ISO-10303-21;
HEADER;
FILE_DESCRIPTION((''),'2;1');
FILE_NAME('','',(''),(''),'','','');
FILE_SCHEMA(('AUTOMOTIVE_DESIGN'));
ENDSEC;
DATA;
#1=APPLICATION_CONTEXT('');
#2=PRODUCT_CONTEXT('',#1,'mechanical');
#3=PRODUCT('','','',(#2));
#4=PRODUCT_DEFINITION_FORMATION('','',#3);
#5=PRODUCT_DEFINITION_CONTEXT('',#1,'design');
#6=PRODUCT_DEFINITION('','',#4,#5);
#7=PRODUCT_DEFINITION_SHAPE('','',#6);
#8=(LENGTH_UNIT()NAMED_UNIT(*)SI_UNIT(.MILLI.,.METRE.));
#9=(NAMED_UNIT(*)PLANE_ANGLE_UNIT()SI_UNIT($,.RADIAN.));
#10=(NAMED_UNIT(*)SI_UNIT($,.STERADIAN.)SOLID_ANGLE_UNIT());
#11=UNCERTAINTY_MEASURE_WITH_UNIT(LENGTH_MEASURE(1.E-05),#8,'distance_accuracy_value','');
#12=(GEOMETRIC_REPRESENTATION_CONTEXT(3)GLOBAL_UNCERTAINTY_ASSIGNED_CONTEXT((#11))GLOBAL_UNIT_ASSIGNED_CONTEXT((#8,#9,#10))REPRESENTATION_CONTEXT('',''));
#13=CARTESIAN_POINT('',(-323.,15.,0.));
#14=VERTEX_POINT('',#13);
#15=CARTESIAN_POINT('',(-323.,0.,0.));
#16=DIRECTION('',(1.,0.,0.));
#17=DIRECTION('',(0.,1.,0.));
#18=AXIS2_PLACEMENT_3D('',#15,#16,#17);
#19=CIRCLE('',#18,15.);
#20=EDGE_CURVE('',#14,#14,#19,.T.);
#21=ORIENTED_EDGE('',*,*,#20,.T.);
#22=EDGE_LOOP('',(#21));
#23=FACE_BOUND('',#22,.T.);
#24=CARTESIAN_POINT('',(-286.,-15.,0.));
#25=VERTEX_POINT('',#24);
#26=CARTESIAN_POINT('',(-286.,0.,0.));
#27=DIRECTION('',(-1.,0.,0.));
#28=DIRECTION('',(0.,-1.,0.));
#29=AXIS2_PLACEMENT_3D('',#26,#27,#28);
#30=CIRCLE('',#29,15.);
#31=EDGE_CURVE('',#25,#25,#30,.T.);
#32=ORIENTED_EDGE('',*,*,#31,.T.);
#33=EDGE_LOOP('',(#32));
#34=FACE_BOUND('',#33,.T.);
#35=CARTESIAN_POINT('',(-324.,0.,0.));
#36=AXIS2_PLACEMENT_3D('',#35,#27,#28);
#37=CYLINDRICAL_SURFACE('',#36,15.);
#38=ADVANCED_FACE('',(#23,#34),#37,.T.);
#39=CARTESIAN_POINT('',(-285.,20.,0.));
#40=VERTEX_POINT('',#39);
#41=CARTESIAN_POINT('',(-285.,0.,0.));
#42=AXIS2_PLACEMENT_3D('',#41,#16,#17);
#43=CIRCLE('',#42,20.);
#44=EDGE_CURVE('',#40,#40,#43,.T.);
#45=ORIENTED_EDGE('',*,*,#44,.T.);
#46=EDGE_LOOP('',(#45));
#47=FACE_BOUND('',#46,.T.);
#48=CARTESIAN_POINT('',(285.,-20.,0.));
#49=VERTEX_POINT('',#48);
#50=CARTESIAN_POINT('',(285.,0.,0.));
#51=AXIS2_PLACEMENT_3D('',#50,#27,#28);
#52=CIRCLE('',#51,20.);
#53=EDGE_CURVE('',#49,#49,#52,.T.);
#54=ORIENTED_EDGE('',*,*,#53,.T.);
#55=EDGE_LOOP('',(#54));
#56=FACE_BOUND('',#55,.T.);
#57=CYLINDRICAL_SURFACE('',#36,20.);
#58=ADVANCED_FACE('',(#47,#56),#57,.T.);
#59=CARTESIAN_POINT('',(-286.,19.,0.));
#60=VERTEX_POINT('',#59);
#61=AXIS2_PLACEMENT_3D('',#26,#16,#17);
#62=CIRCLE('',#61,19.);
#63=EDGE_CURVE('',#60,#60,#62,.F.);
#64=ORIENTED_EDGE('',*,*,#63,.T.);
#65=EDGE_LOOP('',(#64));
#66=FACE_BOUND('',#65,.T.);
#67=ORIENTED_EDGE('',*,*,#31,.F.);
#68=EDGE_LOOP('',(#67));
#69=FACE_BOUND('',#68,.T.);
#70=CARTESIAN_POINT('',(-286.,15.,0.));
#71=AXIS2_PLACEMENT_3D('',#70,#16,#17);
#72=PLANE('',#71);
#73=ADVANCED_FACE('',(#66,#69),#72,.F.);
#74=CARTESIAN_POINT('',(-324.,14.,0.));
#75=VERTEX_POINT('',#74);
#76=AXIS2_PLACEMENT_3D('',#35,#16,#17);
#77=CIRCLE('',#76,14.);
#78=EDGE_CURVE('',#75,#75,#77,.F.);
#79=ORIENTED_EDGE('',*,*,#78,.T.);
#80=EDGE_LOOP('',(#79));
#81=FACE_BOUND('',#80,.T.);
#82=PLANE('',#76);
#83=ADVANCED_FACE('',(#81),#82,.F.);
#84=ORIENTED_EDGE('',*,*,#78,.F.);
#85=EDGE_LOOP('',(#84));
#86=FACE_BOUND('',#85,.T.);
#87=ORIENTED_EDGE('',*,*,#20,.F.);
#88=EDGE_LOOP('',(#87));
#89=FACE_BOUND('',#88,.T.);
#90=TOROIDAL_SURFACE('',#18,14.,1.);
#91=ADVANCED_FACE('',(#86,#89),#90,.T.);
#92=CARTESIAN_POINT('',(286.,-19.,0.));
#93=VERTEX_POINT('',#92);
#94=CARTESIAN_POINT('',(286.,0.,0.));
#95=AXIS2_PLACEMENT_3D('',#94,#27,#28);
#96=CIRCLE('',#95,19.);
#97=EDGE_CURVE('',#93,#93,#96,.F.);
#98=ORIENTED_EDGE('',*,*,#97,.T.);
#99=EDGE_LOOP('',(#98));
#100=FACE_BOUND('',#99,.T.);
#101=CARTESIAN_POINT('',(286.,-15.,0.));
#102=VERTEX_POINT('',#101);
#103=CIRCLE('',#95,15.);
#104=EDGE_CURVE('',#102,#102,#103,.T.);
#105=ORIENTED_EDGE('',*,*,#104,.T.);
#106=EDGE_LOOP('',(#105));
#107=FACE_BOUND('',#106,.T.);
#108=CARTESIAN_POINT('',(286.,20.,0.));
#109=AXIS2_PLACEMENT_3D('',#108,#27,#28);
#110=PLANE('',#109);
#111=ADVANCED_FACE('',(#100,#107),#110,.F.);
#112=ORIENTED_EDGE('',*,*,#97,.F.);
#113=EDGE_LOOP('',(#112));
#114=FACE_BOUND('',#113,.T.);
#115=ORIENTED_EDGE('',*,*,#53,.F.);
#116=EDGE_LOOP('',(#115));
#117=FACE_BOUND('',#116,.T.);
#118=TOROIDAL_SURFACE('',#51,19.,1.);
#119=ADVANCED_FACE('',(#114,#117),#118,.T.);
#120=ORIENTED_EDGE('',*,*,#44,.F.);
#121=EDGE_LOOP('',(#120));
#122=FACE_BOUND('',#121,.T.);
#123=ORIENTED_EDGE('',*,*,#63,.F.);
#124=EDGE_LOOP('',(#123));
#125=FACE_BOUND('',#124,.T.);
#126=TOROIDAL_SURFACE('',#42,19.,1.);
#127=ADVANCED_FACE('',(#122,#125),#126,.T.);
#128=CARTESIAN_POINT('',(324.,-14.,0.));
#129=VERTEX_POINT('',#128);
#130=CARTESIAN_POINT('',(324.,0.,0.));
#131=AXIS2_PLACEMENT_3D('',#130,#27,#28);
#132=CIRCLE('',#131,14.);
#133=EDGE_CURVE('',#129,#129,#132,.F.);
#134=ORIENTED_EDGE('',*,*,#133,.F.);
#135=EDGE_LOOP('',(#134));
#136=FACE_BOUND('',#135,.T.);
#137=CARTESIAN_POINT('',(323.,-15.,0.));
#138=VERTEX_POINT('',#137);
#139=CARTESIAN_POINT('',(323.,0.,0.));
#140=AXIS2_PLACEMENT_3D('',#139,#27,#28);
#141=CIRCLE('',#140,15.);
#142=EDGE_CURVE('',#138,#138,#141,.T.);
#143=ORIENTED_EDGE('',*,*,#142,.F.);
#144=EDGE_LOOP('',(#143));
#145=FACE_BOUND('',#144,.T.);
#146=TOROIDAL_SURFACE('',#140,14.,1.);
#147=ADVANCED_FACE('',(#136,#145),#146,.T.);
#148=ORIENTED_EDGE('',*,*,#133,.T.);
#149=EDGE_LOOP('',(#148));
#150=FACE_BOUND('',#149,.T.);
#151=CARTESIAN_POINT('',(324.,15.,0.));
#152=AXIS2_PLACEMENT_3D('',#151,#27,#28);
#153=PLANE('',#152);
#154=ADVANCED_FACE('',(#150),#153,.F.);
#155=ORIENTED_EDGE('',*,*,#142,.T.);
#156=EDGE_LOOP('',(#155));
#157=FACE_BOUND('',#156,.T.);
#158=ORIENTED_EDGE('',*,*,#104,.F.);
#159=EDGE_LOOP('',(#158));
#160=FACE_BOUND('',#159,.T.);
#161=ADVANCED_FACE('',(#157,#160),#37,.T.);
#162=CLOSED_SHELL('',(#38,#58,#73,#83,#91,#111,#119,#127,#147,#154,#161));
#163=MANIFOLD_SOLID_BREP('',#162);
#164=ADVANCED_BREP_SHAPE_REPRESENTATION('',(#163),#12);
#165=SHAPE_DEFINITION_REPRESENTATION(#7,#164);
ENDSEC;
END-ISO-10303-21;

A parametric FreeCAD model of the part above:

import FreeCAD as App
import Part
import Sketcher
Q = App.Units.Quantity


def edges_at(feature, points):
    """Names of the edges that pass closest to the given points."""
    edges = feature.Shape.Edges
    near = lambda p: min(range(len(edges)), key=lambda i: edges[i].distToShape(Part.Vertex(*p))[0])
    return sorted({f"Edge{near(p) + 1}" for p in points})

doc = App.newDocument("Part")
params = doc.addObject("Spreadsheet::Sheet", "Params")
for row, (alias, value) in enumerate([
    ("sketch1_width", "648 mm"),
    ("sketch1_width2", "38 mm"),
    ("sketch1_height", "15 mm"),
    ("sketch1_height2", "5 mm"),
    ("revolution_angle", "360 deg"),
    ("fillet_radius", "1 mm"),
], start=1):
    params.set(f"A{row}", alias)
    params.set(f"B{row}", "=" + value)
    params.setAlias(f"B{row}", alias)

body = doc.addObject("PartDesign::Body", "Body")

# Sketch on XY plane
sketch1 = body.newObject("Sketcher::SketchObject", "Sketch")
sketch1.AttachmentSupport = (doc.getObject("XY_Plane"), [""])
sketch1.MapMode = "FlatFace"
sketch1.addGeometry([
    Part.LineSegment(App.Vector(-324, 15, 0), App.Vector(-324, 0, 0)),  # 0
    Part.LineSegment(App.Vector(-324, 0, 0), App.Vector(324, 0, 0)),  # 1
    Part.LineSegment(App.Vector(324, 0, 0), App.Vector(324, 15, 0)),  # 2
    Part.LineSegment(App.Vector(324, 15, 0), App.Vector(286, 15, 0)),  # 3
    Part.LineSegment(App.Vector(286, 15, 0), App.Vector(286, 20, 0)),  # 4
    Part.LineSegment(App.Vector(286, 20, 0), App.Vector(-286, 20, 0)),  # 5
    Part.LineSegment(App.Vector(-286, 20, 0), App.Vector(-286, 15, 0)),  # 6
    Part.LineSegment(App.Vector(-286, 15, 0), App.Vector(-324, 15, 0)),  # 7
], False)
sketch1.addConstraint([
    Sketcher.Constraint("Coincident", 0, 2, 1, 1),
    Sketcher.Constraint("Coincident", 1, 2, 2, 1),
    Sketcher.Constraint("Coincident", 2, 2, 3, 1),
    Sketcher.Constraint("Coincident", 3, 2, 4, 1),
    Sketcher.Constraint("Coincident", 4, 2, 5, 1),
    Sketcher.Constraint("Coincident", 5, 2, 6, 1),
    Sketcher.Constraint("Coincident", 6, 2, 7, 1),
    Sketcher.Constraint("Coincident", 7, 2, 0, 1),
    Sketcher.Constraint("Vertical", 0),
    Sketcher.Constraint("Horizontal", 1),
    Sketcher.Constraint("Vertical", 2),
    Sketcher.Constraint("Horizontal", 3),
    Sketcher.Constraint("Vertical", 4),
    Sketcher.Constraint("Horizontal", 5),
    Sketcher.Constraint("Vertical", 6),
    Sketcher.Constraint("Horizontal", 7),
    Sketcher.Constraint("Symmetric", 0, 2, 1, 2, -1, 1),
    Sketcher.Constraint("Symmetric", 3, 2, 6, 2, -2),
    Sketcher.Constraint("DistanceX", 1, 1, 1, 2, Q("648 mm")),
    Sketcher.Constraint("DistanceX", 3, 2, 3, 1, Q("38 mm")),
    Sketcher.Constraint("DistanceY", 0, 2, 0, 1, Q("15 mm")),
    Sketcher.Constraint("DistanceY", 4, 1, 4, 2, Q("5 mm")),
])
sketch1.setExpression("Constraints[18]", "Params.sketch1_width")
sketch1.setExpression("Constraints[19]", "Params.sketch1_width2")
sketch1.setExpression("Constraints[20]", "Params.sketch1_height")
sketch1.setExpression("Constraints[21]", "Params.sketch1_height2")
revolution = body.newObject("PartDesign::Revolution", "Revolution")
revolution.Profile = sketch1
revolution.ReferenceAxis = (sketch1, ["H_Axis"])
revolution.setExpression("Angle", "Params.revolution_angle")
doc.recompute()

fillet = body.newObject("PartDesign::Fillet", "Fillet")
fillet.Base = (revolution, edges_at(revolution, [
    (324, 15, 0),
    (286, 20, 0),
    (-286, 20, 0),
    (-324, 15, 0),
]))
fillet.setExpression("Radius", "Params.fillet_radius")

doc.recompute()
